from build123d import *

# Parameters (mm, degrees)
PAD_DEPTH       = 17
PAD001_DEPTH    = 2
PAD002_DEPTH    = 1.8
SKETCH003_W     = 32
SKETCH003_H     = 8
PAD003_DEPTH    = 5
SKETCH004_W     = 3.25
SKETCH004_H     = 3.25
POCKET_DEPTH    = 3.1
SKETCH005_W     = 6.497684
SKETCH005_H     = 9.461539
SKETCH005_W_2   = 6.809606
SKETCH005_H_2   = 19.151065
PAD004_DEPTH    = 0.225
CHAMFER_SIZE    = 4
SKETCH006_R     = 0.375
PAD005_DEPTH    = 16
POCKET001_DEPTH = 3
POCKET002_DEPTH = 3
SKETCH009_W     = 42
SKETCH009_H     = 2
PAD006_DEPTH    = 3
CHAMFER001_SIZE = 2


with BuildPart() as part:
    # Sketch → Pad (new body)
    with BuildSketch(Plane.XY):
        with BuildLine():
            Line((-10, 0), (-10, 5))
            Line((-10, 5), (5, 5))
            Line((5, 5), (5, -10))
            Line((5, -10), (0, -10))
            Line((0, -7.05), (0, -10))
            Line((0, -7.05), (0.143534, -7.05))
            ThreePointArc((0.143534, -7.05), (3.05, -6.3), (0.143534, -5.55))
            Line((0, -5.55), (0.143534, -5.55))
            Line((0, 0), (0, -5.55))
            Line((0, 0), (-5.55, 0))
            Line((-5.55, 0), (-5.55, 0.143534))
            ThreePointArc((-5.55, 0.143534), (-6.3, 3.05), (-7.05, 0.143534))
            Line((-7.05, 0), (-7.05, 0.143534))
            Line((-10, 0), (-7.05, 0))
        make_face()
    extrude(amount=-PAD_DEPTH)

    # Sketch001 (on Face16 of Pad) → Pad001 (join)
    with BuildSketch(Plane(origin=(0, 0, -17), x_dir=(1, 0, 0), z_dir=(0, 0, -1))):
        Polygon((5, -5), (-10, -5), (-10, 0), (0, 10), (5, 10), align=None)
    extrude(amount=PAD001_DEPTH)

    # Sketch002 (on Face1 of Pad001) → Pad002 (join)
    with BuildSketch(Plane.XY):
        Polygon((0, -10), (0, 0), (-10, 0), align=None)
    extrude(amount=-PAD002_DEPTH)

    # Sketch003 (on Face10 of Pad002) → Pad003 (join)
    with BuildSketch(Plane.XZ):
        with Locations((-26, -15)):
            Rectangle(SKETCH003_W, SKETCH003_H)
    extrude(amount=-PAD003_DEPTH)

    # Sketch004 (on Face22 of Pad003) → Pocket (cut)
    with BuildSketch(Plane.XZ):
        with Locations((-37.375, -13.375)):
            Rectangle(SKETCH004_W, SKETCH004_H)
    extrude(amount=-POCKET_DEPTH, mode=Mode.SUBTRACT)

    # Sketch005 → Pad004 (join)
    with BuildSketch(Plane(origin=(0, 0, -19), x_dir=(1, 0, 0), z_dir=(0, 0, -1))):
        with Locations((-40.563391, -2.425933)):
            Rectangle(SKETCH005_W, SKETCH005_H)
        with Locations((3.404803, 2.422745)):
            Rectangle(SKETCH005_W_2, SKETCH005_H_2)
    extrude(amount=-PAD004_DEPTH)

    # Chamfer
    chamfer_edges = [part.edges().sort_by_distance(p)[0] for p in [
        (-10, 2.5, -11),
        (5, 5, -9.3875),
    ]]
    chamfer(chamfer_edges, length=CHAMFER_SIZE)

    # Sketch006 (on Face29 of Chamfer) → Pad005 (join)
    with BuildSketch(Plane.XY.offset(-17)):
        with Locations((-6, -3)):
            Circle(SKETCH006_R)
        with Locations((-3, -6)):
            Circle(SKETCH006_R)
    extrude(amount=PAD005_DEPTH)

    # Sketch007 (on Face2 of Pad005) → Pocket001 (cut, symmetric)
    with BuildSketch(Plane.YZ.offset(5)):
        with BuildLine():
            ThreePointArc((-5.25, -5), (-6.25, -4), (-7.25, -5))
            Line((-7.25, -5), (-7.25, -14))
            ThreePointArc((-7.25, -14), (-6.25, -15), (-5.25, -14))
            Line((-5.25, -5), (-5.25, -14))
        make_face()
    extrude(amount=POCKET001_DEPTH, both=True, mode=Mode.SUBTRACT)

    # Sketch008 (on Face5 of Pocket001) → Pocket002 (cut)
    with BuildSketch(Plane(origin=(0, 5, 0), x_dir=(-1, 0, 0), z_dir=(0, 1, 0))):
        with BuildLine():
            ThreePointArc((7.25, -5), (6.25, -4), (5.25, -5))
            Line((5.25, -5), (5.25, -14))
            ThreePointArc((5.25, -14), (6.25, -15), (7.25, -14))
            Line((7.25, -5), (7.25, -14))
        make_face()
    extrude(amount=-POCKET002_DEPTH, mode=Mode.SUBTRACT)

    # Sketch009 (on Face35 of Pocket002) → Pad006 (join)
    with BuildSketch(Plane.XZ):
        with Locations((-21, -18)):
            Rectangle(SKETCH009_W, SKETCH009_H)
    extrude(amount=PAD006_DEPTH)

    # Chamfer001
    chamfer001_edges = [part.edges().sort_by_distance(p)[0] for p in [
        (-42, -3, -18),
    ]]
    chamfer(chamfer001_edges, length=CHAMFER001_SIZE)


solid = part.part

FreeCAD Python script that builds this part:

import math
import FreeCAD as App
import Part
import Sketcher


def edges_at(feature, points):
    """Names of the edges that pass closest to the given points."""
    edges = feature.Shape.Edges
    near = lambda p: min(range(len(edges)), key=lambda i: edges[i].distToShape(Part.Vertex(*p))[0])
    return sorted({f"Edge{near(p) + 1}" for p in points})


def add_polygon(sketch, points):
    """Adds a closed chain of lines whose ends are joined by coincident constraints."""
    first, n = sketch.GeometryCount, len(points)
    for a, b in zip(points, points[1:] + points[:1]):
        sketch.addGeometry(Part.LineSegment(App.Vector(*a, 0), App.Vector(*b, 0)), False)
    for i in range(n):
        sketch.addConstraint(Sketcher.Constraint("Coincident", first + i, 2, first + (i + 1) % n, 1))

doc = App.newDocument("Part")
body = doc.addObject("PartDesign::Body", "Body")

# Sketch on XY plane
sketch1 = doc.addObject("Sketcher::SketchObject", "Sketch")
body.addObject(sketch1)
sketch1.AttachmentSupport = (doc.XY_Plane, [""])
sketch1.MapMode = "FlatFace"
sketch1.addGeometry([
    Part.LineSegment(App.Vector(-10, 5, 0), App.Vector(-10, 0, 0)),  # 0
    Part.LineSegment(App.Vector(-10, 0, 0), App.Vector(-7.05, 0, 0)),  # 1
    Part.LineSegment(App.Vector(-7.05, 0, 0), App.Vector(-7.05, 0.14, 0)),  # 2
    Part.ArcOfCircle(Part.Circle(App.Vector(-6.3, 1.5, 0), App.Vector(0, 0, 1), 1.55), math.radians(-61), math.radians(241)),  # 3
    Part.LineSegment(App.Vector(-5.55, 0.14, 0), App.Vector(-5.55, 0, 0)),  # 4
    Part.LineSegment(App.Vector(-5.55, 0, 0), App.Vector(0, 0, 0)),  # 5
    Part.LineSegment(App.Vector(0, 0, 0), App.Vector(0, -5.55, 0)),  # 6
    Part.LineSegment(App.Vector(0, -5.55, 0), App.Vector(0.14, -5.55, 0)),  # 7
    Part.ArcOfCircle(Part.Circle(App.Vector(1.5, -6.3, 0), App.Vector(0, 0, 1), 1.55), math.radians(-151), math.radians(151)),  # 8
    Part.LineSegment(App.Vector(0.14, -7.05, 0), App.Vector(0, -7.05, 0)),  # 9
    Part.LineSegment(App.Vector(0, -7.05, 0), App.Vector(0, -10, 0)),  # 10
    Part.LineSegment(App.Vector(0, -10, 0), App.Vector(5, -10, 0)),  # 11
    Part.LineSegment(App.Vector(5, -10, 0), App.Vector(5, 5, 0)),  # 12
    Part.LineSegment(App.Vector(5, 5, 0), App.Vector(-10, 5, 0)),  # 13
], False)
sketch1.addConstraint([
    Sketcher.Constraint("Coincident", 0, 2, 1, 1),
    Sketcher.Constraint("Coincident", 1, 2, 2, 1),
    Sketcher.Constraint("Coincident", 2, 2, 3, 2),
    Sketcher.Constraint("Coincident", 3, 1, 4, 1),
    Sketcher.Constraint("Coincident", 4, 2, 5, 1),
    Sketcher.Constraint("Coincident", 5, 2, 6, 1),
    Sketcher.Constraint("Coincident", 6, 2, 7, 1),
    Sketcher.Constraint("Coincident", 7, 2, 8, 2),
    Sketcher.Constraint("Coincident", 8, 1, 9, 1),
    Sketcher.Constraint("Coincident", 9, 2, 10, 1),
    Sketcher.Constraint("Coincident", 10, 2, 11, 1),
    Sketcher.Constraint("Coincident", 11, 2, 12, 1),
    Sketcher.Constraint("Coincident", 12, 2, 13, 1),
    Sketcher.Constraint("Coincident", 13, 2, 0, 1),
    Sketcher.Constraint("Vertical", 0),
    Sketcher.Constraint("Horizontal", 1),
    Sketcher.Constraint("Vertical", 2),
    Sketcher.Constraint("Vertical", 4),
    Sketcher.Constraint("Horizontal", 5),
    Sketcher.Constraint("Vertical", 6),
    Sketcher.Constraint("Horizontal", 7),
    Sketcher.Constraint("Horizontal", 9),
    Sketcher.Constraint("Vertical", 10),
    Sketcher.Constraint("Horizontal", 11),
    Sketcher.Constraint("Vertical", 12),
    Sketcher.Constraint("Horizontal", 13),
    Sketcher.Constraint("Coincident", 5, 2, -1, 1),
    Sketcher.Constraint("Equal", 3, 8),
    Sketcher.Constraint("PointOnObject", 0, 2, -1),
    Sketcher.Constraint("PointOnObject", 9, 2, -2),
    Sketcher.Constraint("Horizontal", 2, 2, 3, 1),
    Sketcher.Constraint("Vertical", 7, 2, 8, 1),
    Sketcher.Constraint("Equal", 11, 0),
    Sketcher.Constraint("Equal", 9, 2),
    Sketcher.Constraint("Equal", 5, 6),
    Sketcher.Constraint("Equal", 1, 10),
    Sketcher.Constraint("Equal", 13, 12),
    Sketcher.Constraint("DistanceX", 11, 1, 11, 2, 5.0),
    Sketcher.Constraint("DistanceX", 13, 2, 13, 1, 15.0),
    Sketcher.Constraint("Radius", 3, 1.55),
    Sketcher.Constraint("DistanceX", 1, 1, 1, 2, 2.95),
    Sketcher.Constraint("DistanceX", 5, 1, 5, 2, 5.55),
    Sketcher.Constraint("DistanceY", -1, 1, 3, 3, 1.5),
])
pad1 = doc.addObject("PartDesign::Pad", "Pad")
body.addObject(pad1)
pad1.Profile = sketch1
pad1.Length = 17
pad1.Reversed = True

# Sketch on XY plane
sketch2 = doc.addObject("Sketcher::SketchObject", "Sketch001")
body.addObject(sketch2)
sketch2.AttachmentSupport = (doc.XY_Plane, [""])
sketch2.MapMode = "FlatFace"
sketch2.AttachmentOffset = App.Placement(App.Vector(0, 0, -17), App.Rotation())
add_polygon(sketch2, [(-10, 5), (5, 5), (5, -10), (0, -10), (-10, 0)])  # lines 0-4
sketch2.addConstraint([
    Sketcher.Constraint("Horizontal", 0),
    Sketcher.Constraint("Vertical", 1),
    Sketcher.Constraint("Horizontal", 2),
    Sketcher.Constraint("Vertical", 4),
    Sketcher.Constraint("PointOnObject", 2, 2, -2),
    Sketcher.Constraint("PointOnObject", 3, 2, -1),
    Sketcher.Constraint("Equal", 0, 1),
    Sketcher.Constraint("Equal", 2, 4),
    Sketcher.Constraint("DistanceX", 0, 1, 0, 2, 15.0),
    Sketcher.Constraint("DistanceX", 2, 2, 2, 1, 5.0),
])
pad2 = doc.addObject("PartDesign::Pad", "Pad001")
body.addObject(pad2)
pad2.Profile = sketch2
pad2.Length = 2
pad2.Reversed = True

# Sketch on XY plane
sketch3 = doc.addObject("Sketcher::SketchObject", "Sketch002")
body.addObject(sketch3)
sketch3.AttachmentSupport = (doc.XY_Plane, [""])
sketch3.MapMode = "FlatFace"
add_polygon(sketch3, [(0, -10), (0, 0), (-10, 0)])  # lines 0-2
sketch3.addConstraint([
    Sketcher.Constraint("Vertical", 0),
    Sketcher.Constraint("Horizontal", 1),
    Sketcher.Constraint("Coincident", 0, 2, -1, 1),
    Sketcher.Constraint("Equal", 1, 0),
    Sketcher.Constraint("DistanceX", 1, 2, 1, 1, 10.0),
])
pad3 = doc.addObject("PartDesign::Pad", "Pad002")
body.addObject(pad3)
pad3.Profile = sketch3
pad3.Length = 1.8
pad3.Reversed = True

# Sketch on XZ plane
sketch4 = doc.addObject("Sketcher::SketchObject", "Sketch003")
body.addObject(sketch4)
sketch4.AttachmentSupport = (doc.XZ_Plane, [""])
sketch4.MapMode = "FlatFace"
add_polygon(sketch4, [(-42, -11), (-42, -19), (-10, -19), (-10, -11)])  # lines 0-3
sketch4.addConstraint([
    Sketcher.Constraint("Vertical", 0),
    Sketcher.Constraint("Horizontal", 1),
    Sketcher.Constraint("Vertical", 2),
    Sketcher.Constraint("Horizontal", 3),
    Sketcher.Constraint("DistanceX", 1, 1, 1, 2, 32.0),
    Sketcher.Constraint("DistanceY", 0, 2, 0, 1, 8.0),
    Sketcher.Constraint("DistanceX", 0, 2, -1, 1, 42.0),
    Sketcher.Constraint("DistanceY", 0, 2, -1, 1, 19.0),
])
pad4 = doc.addObject("PartDesign::Pad", "Pad003")
body.addObject(pad4)
pad4.Profile = sketch4
pad4.Length = 5
pad4.Reversed = True

# Sketch on XZ plane
sketch5 = doc.addObject("Sketcher::SketchObject", "Sketch004")
body.addObject(sketch5)
sketch5.AttachmentSupport = (doc.XZ_Plane, [""])
sketch5.MapMode = "FlatFace"
add_polygon(sketch5, [(-39, -11.8), (-39, -15), (-35.8, -15), (-35.8, -11.8)])  # lines 0-3
sketch5.addConstraint([
    Sketcher.Constraint("Vertical", 0),
    Sketcher.Constraint("Horizontal", 1),
    Sketcher.Constraint("Vertical", 2),
    Sketcher.Constraint("Horizontal", 3),
    Sketcher.Constraint("Equal", 3, 0),
    Sketcher.Constraint("DistanceX", 0, 2, -1, 1, 39.0),
    Sketcher.Constraint("DistanceY", 0, 2, -1, 1, 15.0),
    Sketcher.Constraint("DistanceX", 1, 1, 1, 2, 3.25),
])
pocket1 = doc.addObject("PartDesign::Pocket", "Pocket")
body.addObject(pocket1)
pocket1.Profile = sketch5
pocket1.Length = 3.1

# Sketch on XY plane
sketch6 = doc.addObject("Sketcher::SketchObject", "Sketch005")
body.addObject(sketch6)
sketch6.AttachmentSupport = (doc.XY_Plane, [""])
sketch6.MapMode = "FlatFace"
sketch6.AttachmentOffset = App.Placement(App.Vector(0, 0, -19), App.Rotation())
add_polygon(sketch6, [(-44, -2), (-44, 7), (-37, 7), (-37, -2)])  # lines 0-3
add_polygon(sketch6, [(0, -12), (0, 7), (7, 7), (7, -12)])  # lines 4-7
sketch6.addConstraint([
    Sketcher.Constraint("Vertical", 0),
    Sketcher.Constraint("Horizontal", 1),
    Sketcher.Constraint("Vertical", 2),
    Sketcher.Constraint("Horizontal", 3),
    Sketcher.Constraint("Vertical", 4),
    Sketcher.Constraint("Horizontal", 5),
    Sketcher.Constraint("Vertical", 6),
    Sketcher.Constraint("Horizontal", 7),
    Sketcher.Constraint("PointOnObject", 4, 2, -2),
    Sketcher.Constraint("DistanceY", 0, 1, 0, 2, 9.461539),
    Sketcher.Constraint("DistanceX", 1, 1, 1, 2, 6.497684),
    Sketcher.Constraint("DistanceX", 5, 1, 5, 2, 6.809606),
    Sketcher.Constraint("DistanceY", 4, 1, 4, 2, 19.151065),
    Sketcher.Constraint("DistanceX", 1, 2, -1, 1, 37.314549),
    Sketcher.Constraint("DistanceY", 6, 2, 2, 2, 9.693441),
    Sketcher.Constraint("DistanceY", -1, 1, 0, 2, 7.156702),
])
pad5 = doc.addObject("PartDesign::Pad", "Pad004")
body.addObject(pad5)
pad5.Profile = sketch6
pad5.Length = 0.225
doc.recompute()

chamfer = doc.addObject("PartDesign::Chamfer", "Chamfer")
body.addObject(chamfer)
chamfer.Base = (pad5, edges_at(pad5, [(-10, 2.5, -11), (5, 5, -9.387)]))
chamfer.Size = 4

# Sketch on XY plane
sketch7 = doc.addObject("Sketcher::SketchObject", "Sketch006")
body.addObject(sketch7)
sketch7.AttachmentSupport = (doc.XY_Plane, [""])
sketch7.MapMode = "FlatFace"
sketch7.AttachmentOffset = App.Placement(App.Vector(0, 0, -17), App.Rotation())
sketch7.addGeometry([
    Part.Circle(App.Vector(-6, -3, 0), App.Vector(0, 0, 1), 0.38),
    Part.Circle(App.Vector(-3, -6, 0), App.Vector(0, 0, 1), 0.38),
], False)
sketch7.addConstraint([
    Sketcher.Constraint("Equal", 0, 1),
    Sketcher.Constraint("Diameter", 0, 0.75),
    Sketcher.Constraint("DistanceX", 0, 3, -1, 1, 6.0),
    Sketcher.Constraint("DistanceY", 0, 3, -1, 1, 3.0),
    Sketcher.Constraint("DistanceX", 1, 3, -1, 1, 3.0),
    Sketcher.Constraint("DistanceY", 1, 3, -1, 1, 6.0),
])
pad6 = doc.addObject("PartDesign::Pad", "Pad005")
body.addObject(pad6)
pad6.Profile = sketch7
pad6.Length = 16

# Sketch on YZ plane
sketch8 = doc.addObject("Sketcher::SketchObject", "Sketch007")
body.addObject(sketch8)
sketch8.AttachmentSupport = (doc.YZ_Plane, [""])
sketch8.MapMode = "FlatFace"
sketch8.AttachmentOffset = App.Placement(App.Vector(0, 0, 5), App.Rotation())
sketch8.addGeometry([
    Part.ArcOfCircle(Part.Circle(App.Vector(-6.2, -5, 0), App.Vector(0, 0, 1), 1), math.radians(0), math.radians(180)),
    Part.LineSegment(App.Vector(-7.2, -5, 0), App.Vector(-7.2, -14, 0)),
    Part.ArcOfCircle(Part.Circle(App.Vector(-6.2, -14, 0), App.Vector(0, 0, 1), 1), math.radians(180), math.radians(360)),
    Part.LineSegment(App.Vector(-5.2, -14, 0), App.Vector(-5.2, -5, 0)),
], False)
sketch8.addConstraint([
    Sketcher.Constraint("Tangent", 0, 2, 1, 1),
    Sketcher.Constraint("Tangent", 1, 2, 2, 1),
    Sketcher.Constraint("Tangent", 2, 2, 3, 1),
    Sketcher.Constraint("Tangent", 3, 2, 0, 1),
    Sketcher.Constraint("Vertical", 1),
    Sketcher.Constraint("Vertical", 3),
    Sketcher.Constraint("Radius", 0, 1.0),
    Sketcher.Constraint("DistanceY", 1, 2, 1, 1, 9.0),
    Sketcher.Constraint("DistanceY", 0, 3, -1, 1, 5.0),
    Sketcher.Constraint("DistanceX", 0, 3, -1, 1, 6.25),
])
pocket2 = doc.addObject("PartDesign::Pocket", "Pocket001")
body.addObject(pocket2)
pocket2.Profile = sketch8
pocket2.Length = 6
pocket2.Midplane = True

# Sketch on XZ plane
sketch9 = doc.addObject("Sketcher::SketchObject", "Sketch008")
body.addObject(sketch9)
sketch9.AttachmentSupport = (doc.XZ_Plane, [""])
sketch9.MapMode = "FlatFace"
sketch9.AttachmentOffset = App.Placement(App.Vector(0, 0, -5), App.Rotation())
sketch9.addGeometry([
    Part.ArcOfCircle(Part.Circle(App.Vector(-6.2, -5, 0), App.Vector(0, 0, 1), 1), math.radians(0), math.radians(180)),
    Part.LineSegment(App.Vector(-5.2, -5, 0), App.Vector(-5.2, -14, 0)),
    Part.ArcOfCircle(Part.Circle(App.Vector(-6.2, -14, 0), App.Vector(0, 0, 1), 1), math.radians(180), math.radians(360)),
    Part.LineSegment(App.Vector(-7.2, -14, 0), App.Vector(-7.2, -5, 0)),
], False)
sketch9.addConstraint([
    Sketcher.Constraint("Tangent", 0, 1, 1, 1),
    Sketcher.Constraint("Tangent", 1, 2, 2, 2),
    Sketcher.Constraint("Tangent", 2, 1, 3, 1),
    Sketcher.Constraint("Tangent", 3, 2, 0, 2),
    Sketcher.Constraint("Vertical", 1),
    Sketcher.Constraint("Vertical", 3),
    Sketcher.Constraint("Radius", 0, 1.0),
    Sketcher.Constraint("DistanceY", 1, 2, 1, 1, 9.0),
    Sketcher.Constraint("DistanceY", 0, 3, -1, 1, 5.0),
    Sketcher.Constraint("DistanceX", 0, 3, -1, 1, 6.25),
])
pocket3 = doc.addObject("PartDesign::Pocket", "Pocket002")
body.addObject(pocket3)
pocket3.Profile = sketch9
pocket3.Length = 3
pocket3.Reversed = True

# Sketch on XZ plane
sketch10 = doc.addObject("Sketcher::SketchObject", "Sketch009")
body.addObject(sketch10)
sketch10.AttachmentSupport = (doc.XZ_Plane, [""])
sketch10.MapMode = "FlatFace"
add_polygon(sketch10, [(-42, -17), (-42, -19), (0, -19), (0, -17)])  # lines 0-3
sketch10.addConstraint([
    Sketcher.Constraint("Vertical", 0),
    Sketcher.Constraint("Horizontal", 1),
    Sketcher.Constraint("Vertical", 2),
    Sketcher.Constraint("Horizontal", 3),
    Sketcher.Constraint("PointOnObject", 1, 2, -2),
    Sketcher.Constraint("DistanceX", 1, 1, 1, 2, 42.0),
    Sketcher.Constraint("DistanceY", 0, 2, 0, 1, 2.0),
    Sketcher.Constraint("DistanceY", 0, 2, -1, 1, 19.0),
])
pad7 = doc.addObject("PartDesign::Pad", "Pad006")
body.addObject(pad7)
pad7.Profile = sketch10
pad7.Length = 3
doc.recompute()

chamfer2 = doc.addObject("PartDesign::Chamfer", "Chamfer001")
body.addObject(chamfer2)
chamfer2.Base = (pad7, edges_at(pad7, [(-42, -3, -18)]))
chamfer2.Size = 2

doc.recompute()
